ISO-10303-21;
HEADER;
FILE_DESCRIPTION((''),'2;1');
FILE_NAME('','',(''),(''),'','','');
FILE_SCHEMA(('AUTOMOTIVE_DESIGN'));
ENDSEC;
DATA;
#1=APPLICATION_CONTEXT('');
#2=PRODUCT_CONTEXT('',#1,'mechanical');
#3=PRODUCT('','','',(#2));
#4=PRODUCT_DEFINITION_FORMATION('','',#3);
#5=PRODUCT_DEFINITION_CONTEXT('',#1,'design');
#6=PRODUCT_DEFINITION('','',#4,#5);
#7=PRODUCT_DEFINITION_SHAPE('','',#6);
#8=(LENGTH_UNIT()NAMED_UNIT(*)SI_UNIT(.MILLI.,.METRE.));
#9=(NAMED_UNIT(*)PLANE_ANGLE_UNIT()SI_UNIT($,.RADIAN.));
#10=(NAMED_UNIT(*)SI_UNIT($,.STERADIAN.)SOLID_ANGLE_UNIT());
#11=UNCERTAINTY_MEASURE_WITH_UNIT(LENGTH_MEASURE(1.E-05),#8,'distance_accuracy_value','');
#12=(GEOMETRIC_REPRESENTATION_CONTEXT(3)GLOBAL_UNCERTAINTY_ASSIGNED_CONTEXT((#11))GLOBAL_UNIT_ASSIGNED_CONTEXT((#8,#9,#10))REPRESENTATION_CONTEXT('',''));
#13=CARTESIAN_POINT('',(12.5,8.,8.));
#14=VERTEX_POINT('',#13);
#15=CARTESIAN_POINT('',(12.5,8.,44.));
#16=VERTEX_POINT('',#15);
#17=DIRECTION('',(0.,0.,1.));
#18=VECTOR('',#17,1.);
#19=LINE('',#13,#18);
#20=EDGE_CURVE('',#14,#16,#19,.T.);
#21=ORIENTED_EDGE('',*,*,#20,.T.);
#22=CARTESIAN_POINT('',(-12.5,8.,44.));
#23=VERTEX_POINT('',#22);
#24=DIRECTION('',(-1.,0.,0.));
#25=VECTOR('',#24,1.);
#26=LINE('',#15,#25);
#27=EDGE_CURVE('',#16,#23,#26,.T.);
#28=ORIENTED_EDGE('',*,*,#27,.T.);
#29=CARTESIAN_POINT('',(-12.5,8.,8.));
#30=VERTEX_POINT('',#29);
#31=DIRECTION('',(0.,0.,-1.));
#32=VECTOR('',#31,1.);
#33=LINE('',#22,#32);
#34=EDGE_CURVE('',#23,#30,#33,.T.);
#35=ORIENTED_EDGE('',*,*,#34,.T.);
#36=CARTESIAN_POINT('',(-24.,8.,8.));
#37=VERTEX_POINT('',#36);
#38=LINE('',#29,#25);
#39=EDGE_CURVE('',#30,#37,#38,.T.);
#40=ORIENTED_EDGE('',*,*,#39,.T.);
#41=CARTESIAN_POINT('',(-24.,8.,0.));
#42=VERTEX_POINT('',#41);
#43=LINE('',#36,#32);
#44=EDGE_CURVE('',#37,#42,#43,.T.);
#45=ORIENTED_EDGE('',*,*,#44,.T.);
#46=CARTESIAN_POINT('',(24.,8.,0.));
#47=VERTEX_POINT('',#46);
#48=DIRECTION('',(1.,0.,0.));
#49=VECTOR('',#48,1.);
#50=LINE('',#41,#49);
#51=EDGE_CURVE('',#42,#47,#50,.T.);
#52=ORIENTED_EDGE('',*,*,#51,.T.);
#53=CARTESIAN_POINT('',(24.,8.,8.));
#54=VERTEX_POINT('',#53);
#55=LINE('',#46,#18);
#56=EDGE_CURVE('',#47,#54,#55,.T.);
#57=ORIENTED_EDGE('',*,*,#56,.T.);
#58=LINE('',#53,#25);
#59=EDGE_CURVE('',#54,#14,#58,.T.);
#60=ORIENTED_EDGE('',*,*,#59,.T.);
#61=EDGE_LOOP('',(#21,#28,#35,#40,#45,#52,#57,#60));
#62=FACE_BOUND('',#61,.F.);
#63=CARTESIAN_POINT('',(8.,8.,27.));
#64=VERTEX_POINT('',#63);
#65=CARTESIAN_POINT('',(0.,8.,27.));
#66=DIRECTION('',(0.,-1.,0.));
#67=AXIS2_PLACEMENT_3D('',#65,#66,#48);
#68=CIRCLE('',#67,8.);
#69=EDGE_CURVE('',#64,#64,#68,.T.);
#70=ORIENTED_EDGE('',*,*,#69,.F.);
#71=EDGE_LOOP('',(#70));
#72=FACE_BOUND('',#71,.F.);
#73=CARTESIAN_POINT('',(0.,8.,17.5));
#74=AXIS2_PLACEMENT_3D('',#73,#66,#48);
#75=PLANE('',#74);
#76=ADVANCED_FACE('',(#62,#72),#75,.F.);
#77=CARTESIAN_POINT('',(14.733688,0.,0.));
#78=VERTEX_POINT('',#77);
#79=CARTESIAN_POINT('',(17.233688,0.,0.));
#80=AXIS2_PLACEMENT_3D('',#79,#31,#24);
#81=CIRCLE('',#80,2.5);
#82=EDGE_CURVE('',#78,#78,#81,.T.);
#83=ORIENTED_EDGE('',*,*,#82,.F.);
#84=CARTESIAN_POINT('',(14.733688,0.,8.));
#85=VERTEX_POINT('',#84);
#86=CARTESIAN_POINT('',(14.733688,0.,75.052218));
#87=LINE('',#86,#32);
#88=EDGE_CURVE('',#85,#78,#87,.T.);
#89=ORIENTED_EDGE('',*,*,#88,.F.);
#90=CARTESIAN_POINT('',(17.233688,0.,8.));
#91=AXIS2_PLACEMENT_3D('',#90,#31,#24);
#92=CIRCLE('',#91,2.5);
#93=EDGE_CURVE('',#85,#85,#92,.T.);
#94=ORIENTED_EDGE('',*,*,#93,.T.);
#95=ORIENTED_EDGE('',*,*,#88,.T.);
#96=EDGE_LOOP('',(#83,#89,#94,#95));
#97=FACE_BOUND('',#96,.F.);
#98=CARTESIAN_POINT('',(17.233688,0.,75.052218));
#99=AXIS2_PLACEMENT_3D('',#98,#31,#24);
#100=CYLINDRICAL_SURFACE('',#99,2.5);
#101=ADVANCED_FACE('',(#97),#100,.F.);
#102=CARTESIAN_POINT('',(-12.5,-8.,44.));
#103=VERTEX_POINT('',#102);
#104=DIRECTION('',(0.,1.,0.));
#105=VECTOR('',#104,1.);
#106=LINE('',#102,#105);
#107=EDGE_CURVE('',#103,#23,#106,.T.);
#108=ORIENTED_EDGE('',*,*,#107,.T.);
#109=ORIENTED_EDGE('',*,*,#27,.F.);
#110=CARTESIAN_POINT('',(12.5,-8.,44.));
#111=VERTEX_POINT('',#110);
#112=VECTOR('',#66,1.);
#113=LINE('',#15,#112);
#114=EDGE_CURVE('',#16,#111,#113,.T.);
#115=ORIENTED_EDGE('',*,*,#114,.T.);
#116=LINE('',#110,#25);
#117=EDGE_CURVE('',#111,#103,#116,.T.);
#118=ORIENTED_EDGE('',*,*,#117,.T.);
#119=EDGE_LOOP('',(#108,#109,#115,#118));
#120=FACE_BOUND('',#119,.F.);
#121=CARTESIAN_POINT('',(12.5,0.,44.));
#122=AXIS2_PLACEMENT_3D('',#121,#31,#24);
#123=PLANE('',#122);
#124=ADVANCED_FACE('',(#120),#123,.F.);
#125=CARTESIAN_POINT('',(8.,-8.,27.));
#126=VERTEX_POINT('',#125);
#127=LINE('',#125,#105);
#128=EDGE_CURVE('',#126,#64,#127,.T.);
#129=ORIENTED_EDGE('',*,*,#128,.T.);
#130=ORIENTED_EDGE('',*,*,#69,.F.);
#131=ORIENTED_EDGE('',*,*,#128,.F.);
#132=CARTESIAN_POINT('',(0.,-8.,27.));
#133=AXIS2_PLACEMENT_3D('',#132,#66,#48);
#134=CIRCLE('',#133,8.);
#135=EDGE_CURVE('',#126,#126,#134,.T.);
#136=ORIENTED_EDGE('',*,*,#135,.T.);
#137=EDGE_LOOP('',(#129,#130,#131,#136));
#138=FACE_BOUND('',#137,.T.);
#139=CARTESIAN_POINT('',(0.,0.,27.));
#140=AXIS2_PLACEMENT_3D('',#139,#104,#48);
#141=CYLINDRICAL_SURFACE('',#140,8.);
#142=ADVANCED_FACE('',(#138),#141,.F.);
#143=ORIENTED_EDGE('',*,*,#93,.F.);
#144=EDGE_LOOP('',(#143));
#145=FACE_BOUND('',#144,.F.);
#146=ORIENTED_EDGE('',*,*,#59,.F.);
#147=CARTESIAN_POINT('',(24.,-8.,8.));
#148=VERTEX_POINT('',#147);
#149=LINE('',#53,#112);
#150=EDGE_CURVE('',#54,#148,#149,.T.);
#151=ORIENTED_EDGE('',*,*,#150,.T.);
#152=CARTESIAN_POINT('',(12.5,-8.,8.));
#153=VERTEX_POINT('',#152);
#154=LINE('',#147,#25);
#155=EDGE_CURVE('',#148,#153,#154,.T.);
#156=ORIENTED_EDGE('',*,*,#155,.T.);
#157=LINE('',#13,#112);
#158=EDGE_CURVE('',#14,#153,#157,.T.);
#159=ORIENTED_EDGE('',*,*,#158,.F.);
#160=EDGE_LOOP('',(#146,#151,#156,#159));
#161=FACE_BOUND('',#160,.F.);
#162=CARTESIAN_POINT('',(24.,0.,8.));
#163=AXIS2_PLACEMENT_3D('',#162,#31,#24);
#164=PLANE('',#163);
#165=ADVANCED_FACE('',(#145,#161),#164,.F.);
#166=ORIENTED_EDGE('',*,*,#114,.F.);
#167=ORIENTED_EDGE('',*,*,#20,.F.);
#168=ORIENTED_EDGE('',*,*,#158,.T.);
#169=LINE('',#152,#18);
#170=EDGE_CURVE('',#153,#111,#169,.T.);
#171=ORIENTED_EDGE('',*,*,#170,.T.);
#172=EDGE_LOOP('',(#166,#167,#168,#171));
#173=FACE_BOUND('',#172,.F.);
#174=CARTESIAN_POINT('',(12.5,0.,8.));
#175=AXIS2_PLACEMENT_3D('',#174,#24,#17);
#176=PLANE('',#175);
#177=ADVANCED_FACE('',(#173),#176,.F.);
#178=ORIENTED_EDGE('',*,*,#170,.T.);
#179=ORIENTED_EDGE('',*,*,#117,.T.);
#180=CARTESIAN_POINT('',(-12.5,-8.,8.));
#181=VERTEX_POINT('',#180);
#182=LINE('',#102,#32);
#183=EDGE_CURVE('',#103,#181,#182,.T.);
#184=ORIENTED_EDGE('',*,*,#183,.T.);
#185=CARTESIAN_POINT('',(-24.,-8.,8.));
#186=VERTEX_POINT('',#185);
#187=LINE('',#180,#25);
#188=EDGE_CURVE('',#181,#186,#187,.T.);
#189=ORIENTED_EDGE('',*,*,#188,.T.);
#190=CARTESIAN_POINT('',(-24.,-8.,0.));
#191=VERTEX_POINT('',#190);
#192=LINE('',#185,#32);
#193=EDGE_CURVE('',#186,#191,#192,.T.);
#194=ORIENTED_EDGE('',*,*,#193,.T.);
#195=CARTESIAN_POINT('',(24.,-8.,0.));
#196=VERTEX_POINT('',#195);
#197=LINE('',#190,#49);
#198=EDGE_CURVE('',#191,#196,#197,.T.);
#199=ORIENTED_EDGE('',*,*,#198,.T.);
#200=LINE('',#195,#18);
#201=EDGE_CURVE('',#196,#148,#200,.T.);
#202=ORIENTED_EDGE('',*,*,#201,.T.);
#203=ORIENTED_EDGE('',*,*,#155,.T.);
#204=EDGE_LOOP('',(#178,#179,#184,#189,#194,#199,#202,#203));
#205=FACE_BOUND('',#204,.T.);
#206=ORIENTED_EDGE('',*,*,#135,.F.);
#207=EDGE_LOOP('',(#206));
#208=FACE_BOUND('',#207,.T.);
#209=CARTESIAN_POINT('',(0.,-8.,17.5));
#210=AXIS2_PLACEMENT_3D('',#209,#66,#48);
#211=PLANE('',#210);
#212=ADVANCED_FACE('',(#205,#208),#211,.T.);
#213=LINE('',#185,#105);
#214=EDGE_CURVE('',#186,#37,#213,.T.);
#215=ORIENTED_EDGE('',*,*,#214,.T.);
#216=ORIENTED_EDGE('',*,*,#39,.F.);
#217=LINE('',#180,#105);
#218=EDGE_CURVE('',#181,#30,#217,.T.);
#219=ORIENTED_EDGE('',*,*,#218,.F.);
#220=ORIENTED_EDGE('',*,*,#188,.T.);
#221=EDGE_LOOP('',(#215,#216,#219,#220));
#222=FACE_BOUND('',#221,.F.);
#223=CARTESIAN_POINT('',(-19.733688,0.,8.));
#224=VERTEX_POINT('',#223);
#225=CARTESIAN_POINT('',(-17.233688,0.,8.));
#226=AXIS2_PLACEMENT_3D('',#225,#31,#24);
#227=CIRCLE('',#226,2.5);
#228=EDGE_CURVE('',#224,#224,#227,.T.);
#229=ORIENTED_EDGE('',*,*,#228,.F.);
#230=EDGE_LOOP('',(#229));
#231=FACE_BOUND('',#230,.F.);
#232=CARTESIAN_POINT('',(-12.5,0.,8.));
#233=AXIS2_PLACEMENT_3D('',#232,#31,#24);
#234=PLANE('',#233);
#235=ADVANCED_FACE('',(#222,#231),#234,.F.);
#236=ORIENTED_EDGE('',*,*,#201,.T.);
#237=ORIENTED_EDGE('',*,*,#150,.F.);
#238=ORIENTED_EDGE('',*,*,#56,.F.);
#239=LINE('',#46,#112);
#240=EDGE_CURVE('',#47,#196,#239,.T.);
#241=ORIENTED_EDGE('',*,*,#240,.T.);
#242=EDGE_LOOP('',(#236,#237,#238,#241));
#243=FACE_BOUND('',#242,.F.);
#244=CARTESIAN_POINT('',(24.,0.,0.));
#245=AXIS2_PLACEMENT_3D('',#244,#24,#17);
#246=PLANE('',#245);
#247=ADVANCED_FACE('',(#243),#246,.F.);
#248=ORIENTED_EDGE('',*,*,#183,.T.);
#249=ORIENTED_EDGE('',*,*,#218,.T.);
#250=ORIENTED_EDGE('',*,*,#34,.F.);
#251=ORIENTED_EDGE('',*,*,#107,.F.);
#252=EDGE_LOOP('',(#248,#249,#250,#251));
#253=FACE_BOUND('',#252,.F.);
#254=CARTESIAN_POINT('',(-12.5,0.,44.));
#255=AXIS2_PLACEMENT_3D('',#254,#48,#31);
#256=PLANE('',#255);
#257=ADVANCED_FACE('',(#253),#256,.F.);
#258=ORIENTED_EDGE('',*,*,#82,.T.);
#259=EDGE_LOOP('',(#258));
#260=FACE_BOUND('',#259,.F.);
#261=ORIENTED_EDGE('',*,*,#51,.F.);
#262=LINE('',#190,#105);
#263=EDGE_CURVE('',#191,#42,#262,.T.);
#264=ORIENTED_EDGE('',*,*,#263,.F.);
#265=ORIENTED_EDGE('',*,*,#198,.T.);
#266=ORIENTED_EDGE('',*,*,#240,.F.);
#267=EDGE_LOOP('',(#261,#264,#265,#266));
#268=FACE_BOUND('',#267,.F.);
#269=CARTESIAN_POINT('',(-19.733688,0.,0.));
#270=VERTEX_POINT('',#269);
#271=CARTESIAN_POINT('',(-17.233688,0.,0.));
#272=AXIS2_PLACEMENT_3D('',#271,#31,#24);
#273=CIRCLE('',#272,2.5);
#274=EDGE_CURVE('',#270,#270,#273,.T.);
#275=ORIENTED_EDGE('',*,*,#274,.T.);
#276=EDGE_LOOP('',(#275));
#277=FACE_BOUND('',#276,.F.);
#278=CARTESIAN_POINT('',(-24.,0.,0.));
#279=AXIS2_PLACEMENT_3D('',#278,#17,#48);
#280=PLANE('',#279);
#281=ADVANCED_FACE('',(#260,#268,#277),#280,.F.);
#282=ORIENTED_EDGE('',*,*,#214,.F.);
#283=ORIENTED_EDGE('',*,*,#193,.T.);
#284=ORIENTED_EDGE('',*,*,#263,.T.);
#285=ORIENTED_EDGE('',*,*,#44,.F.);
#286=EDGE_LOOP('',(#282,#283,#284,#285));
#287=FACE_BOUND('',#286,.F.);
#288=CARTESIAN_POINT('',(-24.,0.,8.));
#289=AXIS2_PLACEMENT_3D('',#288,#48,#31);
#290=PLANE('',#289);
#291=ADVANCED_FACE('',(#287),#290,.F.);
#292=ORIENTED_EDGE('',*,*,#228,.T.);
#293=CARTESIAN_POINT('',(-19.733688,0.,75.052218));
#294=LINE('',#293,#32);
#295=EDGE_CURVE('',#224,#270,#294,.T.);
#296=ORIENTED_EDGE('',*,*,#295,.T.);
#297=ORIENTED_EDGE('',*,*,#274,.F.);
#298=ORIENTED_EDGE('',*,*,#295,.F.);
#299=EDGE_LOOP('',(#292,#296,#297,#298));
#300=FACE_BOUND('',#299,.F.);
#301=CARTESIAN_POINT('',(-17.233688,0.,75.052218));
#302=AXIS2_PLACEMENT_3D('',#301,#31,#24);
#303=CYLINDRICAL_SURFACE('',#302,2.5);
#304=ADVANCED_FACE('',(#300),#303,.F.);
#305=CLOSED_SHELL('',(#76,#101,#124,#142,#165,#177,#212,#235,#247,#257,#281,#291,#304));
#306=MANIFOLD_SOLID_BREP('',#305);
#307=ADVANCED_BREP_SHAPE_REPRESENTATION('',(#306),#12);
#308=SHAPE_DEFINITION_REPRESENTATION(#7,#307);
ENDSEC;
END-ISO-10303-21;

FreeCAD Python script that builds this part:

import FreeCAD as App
import Part
import Sketcher

V = App.Vector
Q = App.Units.Quantity


def add_polygon(sketch, points):
    """Adds a closed chain of lines whose ends are joined by coincident constraints."""
    first, n = sketch.GeometryCount, len(points)
    for a, b in zip(points, points[1:] + points[:1]):
        sketch.addGeometry(Part.LineSegment(App.Vector(*a, 0), App.Vector(*b, 0)), False)
    for i in range(n):
        sketch.addConstraint(Sketcher.Constraint("Coincident", first + i, 2, first + (i + 1) % n, 1))

doc = App.newDocument("Part")
params = doc.addObject("Spreadsheet::Sheet", "Params")
for row, (alias, value) in enumerate([
    ("sketch1_diameter", "16 mm"),
    ("sketch1_width", "48 mm"),
    ("sketch1_width2", "25 mm"),
    ("sketch1_height", "8 mm"),
    ("sketch1_height2", "36 mm"),
    ("pad1_length", "8 mm"),
    ("pad1_length2", "8 mm"),
    ("sketch2_diameter", "5 mm"),
    ("hole_diameter", "5 mm"),
], start=1):
    params.set(f"A{row}", alias)
    params.set(f"B{row}", "=" + value)
    params.setAlias(f"B{row}", alias)

body = doc.addObject("PartDesign::Body", "Body")

# Sketch on XZ plane
sketch1 = doc.addObject("Sketcher::SketchObject", "Sketch")
body.addObject(sketch1)
sketch1.AttachmentSupport = (doc.XZ_Plane, [""])
sketch1.MapMode = "FlatFace"
add_polygon(sketch1, [(-24, 0), (24, 0), (24, 8), (12.5, 8), (12.5, 44), (-12.5, 44), (-12.5, 8), (-24, 8)])  # lines 0-7
sketch1.addGeometry(Part.Circle(V(0, 27, 0), V(0, 0, 1), 8), False)  # 8
sketch1.addConstraint(Sketcher.Constraint("Horizontal", 0))
sketch1.addConstraint(Sketcher.Constraint("Vertical", 1))
sketch1.addConstraint(Sketcher.Constraint("Horizontal", 2))
sketch1.addConstraint(Sketcher.Constraint("Vertical", 3))
sketch1.addConstraint(Sketcher.Constraint("Horizontal", 4))
sketch1.addConstraint(Sketcher.Constraint("Vertical", 5))
sketch1.addConstraint(Sketcher.Constraint("Horizontal", 6))
sketch1.addConstraint(Sketcher.Constraint("Vertical", 7))
sketch1.addConstraint(Sketcher.Constraint("Symmetric", 0, 2, 7, 2, -1, 1))
sketch1.addConstraint(Sketcher.Constraint("Symmetric", 2, 2, 5, 2, -2))
sketch1.addConstraint(Sketcher.Constraint("PointOnObject", 8, 3, -2))
sketch1.addConstraint(Sketcher.Constraint("Diameter", 8, Q("16 mm")))
sketch1.addConstraint(Sketcher.Constraint("DistanceX", 0, 1, 0, 2, Q("48 mm")))
sketch1.addConstraint(Sketcher.Constraint("DistanceX", 4, 2, 4, 1, Q("25 mm")))
sketch1.addConstraint(Sketcher.Constraint("DistanceY", 1, 1, 1, 2, Q("8 mm")))
sketch1.addConstraint(Sketcher.Constraint("DistanceY", 3, 1, 3, 2, Q("36 mm")))
sketch1.addConstraint(Sketcher.Constraint("DistanceY", -1, 1, 8, 3, Q("27 mm")))
sketch1.setExpression("Constraints[19]", "Params.sketch1_diameter")
sketch1.setExpression("Constraints[20]", "Params.sketch1_width")
sketch1.setExpression("Constraints[21]", "Params.sketch1_width2")
sketch1.setExpression("Constraints[22]", "Params.sketch1_height")
sketch1.setExpression("Constraints[23]", "Params.sketch1_height2")
pad1 = doc.addObject("PartDesign::Pad", "Pad")
body.addObject(pad1)
pad1.Profile = sketch1
pad1.Type = "TwoLengths"
pad1.setExpression("Length", "Params.pad1_length")
pad1.setExpression("Length2", "Params.pad1_length2")
pad1.Reversed = True

# Sketch on XY plane
sketch2 = doc.addObject("Sketcher::SketchObject", "Sketch001")
body.addObject(sketch2)
sketch2.AttachmentSupport = (doc.XY_Plane, [""])
sketch2.MapMode = "FlatFace"
sketch2.AttachmentOffset = App.Placement(V(0, 0, 8), App.Rotation())
sketch2.addGeometry(Part.Circle(V(-17.233688, 0, 0), V(0, 0, 1), 2.5), False)
sketch2.addGeometry(Part.Circle(V(17.233688, 0, 0), V(0, 0, 1), 2.5), False)
sketch2.addConstraint(Sketcher.Constraint("Equal", 0, 1))
sketch2.addConstraint(Sketcher.Constraint("Symmetric", 0, 3, 1, 3, -1, 1))
sketch2.addConstraint(Sketcher.Constraint("PointOnObject", 0, 3, -1))
sketch2.addConstraint(Sketcher.Constraint("Diameter", 0, Q("5 mm")))
sketch2.addConstraint(Sketcher.Constraint("DistanceX", 0, 3, -1, 1, Q("17.233688 mm")))
sketch2.setExpression("Constraints[3]", "Params.sketch2_diameter")
doc.recompute()
hole = doc.addObject("PartDesign::Hole", "Hole")
body.addObject(hole)
hole.Profile = sketch2
hole.ThreadType = "None"
hole.setExpression("Diameter", "Params.hole_diameter")
hole.DepthType = "ThroughAll"

doc.recompute()
